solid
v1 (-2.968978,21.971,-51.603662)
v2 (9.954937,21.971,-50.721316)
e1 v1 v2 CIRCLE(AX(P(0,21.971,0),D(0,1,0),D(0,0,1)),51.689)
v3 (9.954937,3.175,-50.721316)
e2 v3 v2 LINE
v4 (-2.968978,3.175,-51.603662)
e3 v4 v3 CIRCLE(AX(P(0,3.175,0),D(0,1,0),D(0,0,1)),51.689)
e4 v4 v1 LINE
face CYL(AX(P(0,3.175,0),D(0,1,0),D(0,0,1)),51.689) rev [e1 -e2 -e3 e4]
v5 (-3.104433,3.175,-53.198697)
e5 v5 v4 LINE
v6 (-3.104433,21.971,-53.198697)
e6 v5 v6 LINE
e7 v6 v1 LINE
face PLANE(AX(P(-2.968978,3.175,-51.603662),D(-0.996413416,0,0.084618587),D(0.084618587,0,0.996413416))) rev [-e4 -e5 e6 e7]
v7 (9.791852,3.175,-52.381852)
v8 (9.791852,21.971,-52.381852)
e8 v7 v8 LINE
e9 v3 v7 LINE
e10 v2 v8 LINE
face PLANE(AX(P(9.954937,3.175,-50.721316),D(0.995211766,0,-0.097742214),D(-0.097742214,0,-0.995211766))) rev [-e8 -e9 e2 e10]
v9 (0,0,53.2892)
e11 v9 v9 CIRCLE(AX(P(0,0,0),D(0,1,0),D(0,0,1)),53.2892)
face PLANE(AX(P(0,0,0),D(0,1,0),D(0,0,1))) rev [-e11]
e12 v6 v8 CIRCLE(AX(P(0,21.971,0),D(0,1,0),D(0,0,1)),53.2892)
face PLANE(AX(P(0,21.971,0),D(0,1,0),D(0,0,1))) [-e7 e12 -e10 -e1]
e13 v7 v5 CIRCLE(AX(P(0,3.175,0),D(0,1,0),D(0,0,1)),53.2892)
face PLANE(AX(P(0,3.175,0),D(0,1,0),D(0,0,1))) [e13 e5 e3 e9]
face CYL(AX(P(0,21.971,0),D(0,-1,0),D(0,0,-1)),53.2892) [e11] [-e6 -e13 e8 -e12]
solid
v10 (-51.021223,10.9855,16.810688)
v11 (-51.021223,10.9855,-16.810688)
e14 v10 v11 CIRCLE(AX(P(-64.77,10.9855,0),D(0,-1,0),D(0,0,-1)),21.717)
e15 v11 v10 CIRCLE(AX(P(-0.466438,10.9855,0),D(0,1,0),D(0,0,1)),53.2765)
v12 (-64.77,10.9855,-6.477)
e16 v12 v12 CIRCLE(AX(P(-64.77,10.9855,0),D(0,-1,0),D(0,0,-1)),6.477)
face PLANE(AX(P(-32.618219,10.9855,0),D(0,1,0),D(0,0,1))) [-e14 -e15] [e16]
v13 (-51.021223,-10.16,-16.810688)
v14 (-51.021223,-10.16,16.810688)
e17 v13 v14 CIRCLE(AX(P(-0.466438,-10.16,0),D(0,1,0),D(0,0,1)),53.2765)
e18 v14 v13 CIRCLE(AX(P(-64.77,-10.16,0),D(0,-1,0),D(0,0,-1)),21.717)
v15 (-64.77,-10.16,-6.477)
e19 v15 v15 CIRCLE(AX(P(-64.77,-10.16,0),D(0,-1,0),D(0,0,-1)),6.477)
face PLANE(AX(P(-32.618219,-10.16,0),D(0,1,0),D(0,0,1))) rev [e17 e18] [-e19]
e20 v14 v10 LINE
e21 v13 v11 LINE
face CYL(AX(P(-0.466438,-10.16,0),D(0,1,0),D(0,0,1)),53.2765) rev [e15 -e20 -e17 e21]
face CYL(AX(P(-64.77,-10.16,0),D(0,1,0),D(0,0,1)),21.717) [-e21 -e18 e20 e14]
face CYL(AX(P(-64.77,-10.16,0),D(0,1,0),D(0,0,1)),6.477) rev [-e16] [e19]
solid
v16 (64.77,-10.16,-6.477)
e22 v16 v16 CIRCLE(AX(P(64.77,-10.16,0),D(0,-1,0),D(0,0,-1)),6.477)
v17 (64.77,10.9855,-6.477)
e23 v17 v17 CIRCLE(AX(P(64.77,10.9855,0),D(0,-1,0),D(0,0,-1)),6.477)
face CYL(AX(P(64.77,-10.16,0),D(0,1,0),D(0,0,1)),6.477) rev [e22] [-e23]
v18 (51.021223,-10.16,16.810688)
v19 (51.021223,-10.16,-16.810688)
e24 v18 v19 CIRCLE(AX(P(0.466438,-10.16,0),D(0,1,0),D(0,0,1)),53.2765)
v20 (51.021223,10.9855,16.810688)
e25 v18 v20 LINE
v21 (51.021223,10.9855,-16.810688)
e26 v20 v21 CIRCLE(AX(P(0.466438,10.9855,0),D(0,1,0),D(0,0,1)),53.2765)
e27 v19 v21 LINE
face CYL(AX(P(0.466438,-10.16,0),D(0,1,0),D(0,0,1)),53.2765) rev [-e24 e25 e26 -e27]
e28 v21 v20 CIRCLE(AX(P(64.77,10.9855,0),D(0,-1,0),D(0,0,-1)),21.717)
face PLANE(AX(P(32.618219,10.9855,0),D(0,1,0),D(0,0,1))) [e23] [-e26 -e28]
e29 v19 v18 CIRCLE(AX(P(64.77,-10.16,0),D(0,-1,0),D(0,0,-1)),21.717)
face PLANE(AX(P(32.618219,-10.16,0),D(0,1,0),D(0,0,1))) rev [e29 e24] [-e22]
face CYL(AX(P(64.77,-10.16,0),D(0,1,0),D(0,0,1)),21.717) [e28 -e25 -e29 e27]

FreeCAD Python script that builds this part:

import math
import FreeCAD as App
import Part
import Sketcher
Q = App.Units.Quantity

doc = App.newDocument("Part")
body = doc.addObject("PartDesign::Body", "Body")

# Sketch on XZ plane
sketch1 = body.newObject("Sketcher::SketchObject", "Sketch")
sketch1.AttachmentSupport = (doc.getObject("XZ_Plane"), [""])
sketch1.MapMode = "FlatFace"
sketch1.addGeometry(Part.Circle(App.Vector(0, 0, 0), App.Vector(0, 0, 1), 53.2892), False)
sketch1.addConstraint([
    Sketcher.Constraint("Coincident", 0, 3, -1, 1),
    Sketcher.Constraint("Diameter", 0, Q("4.196 in")),
])
pad1 = body.newObject("PartDesign::Pad", "Pad")
pad1.Profile = sketch1
pad1.Length = Q("0.865 in")
pad1.Reversed = True

# Sketch on XZ plane
sketch2 = body.newObject("Sketcher::SketchObject", "Sketch001")
sketch2.AttachmentSupport = (doc.getObject("XZ_Plane"), [""])
sketch2.MapMode = "FlatFace"
sketch2.AttachmentOffset = App.Placement(App.Vector(0, 0, -0.865 * 25.4), App.Rotation())
sketch2.addGeometry(Part.Circle(App.Vector(0, 0, 0), App.Vector(0, 0, 1), 51.689), False)
sketch2.addConstraint([
    Sketcher.Constraint("Coincident", 0, 3, -1, 1),
    Sketcher.Constraint("Diameter", 0, Q("4.07 in")),
])
pocket1 = body.newObject("PartDesign::Pocket", "Pocket")
pocket1.Profile = sketch2
pocket1.Length = Q("0.74 in")
pocket1.Reversed = True

# Sketch on XZ plane
sketch3 = body.newObject("Sketcher::SketchObject", "Sketch002")
sketch3.AttachmentSupport = (doc.getObject("XZ_Plane"), [""])
sketch3.MapMode = "FlatFace"
sketch3.AttachmentOffset = App.Placement(App.Vector(0, 0, -0.865 * 25.4), App.Rotation())
sketch3.addGeometry([
    Part.LineSegment(App.Vector(9.954937, -50.721316, 0), App.Vector(9.791852, -52.381852, 0)),
    Part.ArcOfCircle(Part.Circle(App.Vector(0, 0, 0), App.Vector(0, 0, 1), 53.2892), math.radians(-93.339733), math.radians(-79.411779)),
    Part.LineSegment(App.Vector(-3.104433, -53.198697, 0), App.Vector(-2.968978, -51.603662, 0)),
    Part.ArcOfCircle(Part.Circle(App.Vector(0, 0, 0), App.Vector(0, 0, 1), 51.689), math.radians(-93.292839), math.radians(-78.895855)),
], False)
sketch3.addConstraint([
    Sketcher.Constraint("Coincident", 0, 2, 1, 2),
    Sketcher.Constraint("Coincident", 1, 1, 2, 1),
    Sketcher.Constraint("Coincident", 2, 2, 3, 1),
    Sketcher.Constraint("Coincident", 3, 2, 0, 1),
    Sketcher.Constraint("Coincident", 1, 3, -1, 1),
    Sketcher.Constraint("Coincident", 3, 3, -1, 1),
    Sketcher.Constraint("Radius", 1, Q("2.098 in")),
    Sketcher.Constraint("Radius", 3, Q("2.035 in")),
    Sketcher.Constraint("DistanceY", 2, 2, -1, 1, 51.603662),
    Sketcher.Constraint("DistanceX", 2, 2, 0, 2, 12.76083),
    Sketcher.Constraint("DistanceX", 1, 1, 3, 2, 13.059371),
    Sketcher.Constraint("DistanceY", 1, 1, 3, 2, 2.47738),
])
pocket2 = body.newObject("PartDesign::Pocket", "Pocket001")
pocket2.Profile = sketch3
pocket2.Length = Q("0.74 in")
pocket2.Reversed = True
body2 = doc.addObject("PartDesign::Body", "Body001")

# Sketch on XZ plane
sketch4 = body2.newObject("Sketcher::SketchObject", "Sketch003")
sketch4.AttachmentSupport = (doc.getObject("XZ_Plane001"), [""])
sketch4.MapMode = "FlatFace"
sketch4.addGeometry([
    Part.ArcOfCircle(Part.Circle(App.Vector(64.77, 0, 0), App.Vector(0, 0, 1), 21.717), math.radians(-129.278336), math.radians(129.278336)),
    Part.ArcOfCircle(Part.Circle(App.Vector(0.466438, 0, 0), App.Vector(0, 0, 1), 53.2765), math.radians(-18.393213), math.radians(18.393213)),
    Part.Circle(App.Vector(64.77, 0, 0), App.Vector(0, 0, 1), 6.477),
], False)
sketch4.addConstraint([
    Sketcher.Constraint("Coincident", 0, 1, 1, 1),
    Sketcher.Constraint("Coincident", 1, 2, 0, 2),
    Sketcher.Constraint("Coincident", 2, 3, 0, 3),
    Sketcher.Constraint("Symmetric", 0, 1, 1, 2, -1),
    Sketcher.Constraint("Diameter", 2, Q("0.51 in")),
    Sketcher.Constraint("Radius", 0, Q("0.855 in")),
    Sketcher.Constraint("Radius", 1, Q("2.0975 in")),
    Sketcher.Constraint("DistanceX", -1, 1, 0, 3, Q("2.55 in")),
    Sketcher.Constraint("DistanceX", -1, 1, 1, 3, 0.466438),
])
pad2 = body2.newObject("PartDesign::Pad", "Pad001")
pad2.Profile = sketch4
pad2.Type = "TwoLengths"
pad2.Length = Q("0.4 in")
pad2.Length2 = Q("0.4325 in")
body3 = doc.addObject("PartDesign::Body", "Body002")

# Sketch on XZ plane
sketch5 = body3.newObject("Sketcher::SketchObject", "Sketch004")
sketch5.AttachmentSupport = (doc.getObject("XZ_Plane002"), [""])
sketch5.MapMode = "FlatFace"
sketch5.addGeometry([
    Part.ArcOfCircle(Part.Circle(App.Vector(-64.77, 0, 0), App.Vector(0, 0, 1), 21.717), math.radians(50.721664), math.radians(309.278336)),
    Part.ArcOfCircle(Part.Circle(App.Vector(-0.466438, 0, 0), App.Vector(0, 0, 1), 53.2765), math.radians(161.606787), math.radians(198.393213)),
    Part.Circle(App.Vector(-64.77, 0, 0), App.Vector(0, 0, 1), 6.477),
], False)
sketch5.addConstraint([
    Sketcher.Constraint("Coincident", 0, 1, 1, 1),
    Sketcher.Constraint("Coincident", 1, 2, 0, 2),
    Sketcher.Constraint("Coincident", 2, 3, 0, 3),
    Sketcher.Constraint("Symmetric", 0, 1, 1, 2, -1),
    Sketcher.Constraint("Diameter", 2, Q("0.51 in")),
    Sketcher.Constraint("Radius", 0, Q("0.855 in")),
    Sketcher.Constraint("Radius", 1, Q("2.0975 in")),
    Sketcher.Constraint("DistanceX", 0, 3, -1, 1, Q("2.55 in")),
    Sketcher.Constraint("DistanceX", 1, 3, -1, 1, 0.466438),
])
pad3 = body3.newObject("PartDesign::Pad", "Pad002")
pad3.Profile = sketch5
pad3.Type = "TwoLengths"
pad3.Length = Q("0.4 in")
pad3.Length2 = Q("0.4325 in")

doc.recompute()
